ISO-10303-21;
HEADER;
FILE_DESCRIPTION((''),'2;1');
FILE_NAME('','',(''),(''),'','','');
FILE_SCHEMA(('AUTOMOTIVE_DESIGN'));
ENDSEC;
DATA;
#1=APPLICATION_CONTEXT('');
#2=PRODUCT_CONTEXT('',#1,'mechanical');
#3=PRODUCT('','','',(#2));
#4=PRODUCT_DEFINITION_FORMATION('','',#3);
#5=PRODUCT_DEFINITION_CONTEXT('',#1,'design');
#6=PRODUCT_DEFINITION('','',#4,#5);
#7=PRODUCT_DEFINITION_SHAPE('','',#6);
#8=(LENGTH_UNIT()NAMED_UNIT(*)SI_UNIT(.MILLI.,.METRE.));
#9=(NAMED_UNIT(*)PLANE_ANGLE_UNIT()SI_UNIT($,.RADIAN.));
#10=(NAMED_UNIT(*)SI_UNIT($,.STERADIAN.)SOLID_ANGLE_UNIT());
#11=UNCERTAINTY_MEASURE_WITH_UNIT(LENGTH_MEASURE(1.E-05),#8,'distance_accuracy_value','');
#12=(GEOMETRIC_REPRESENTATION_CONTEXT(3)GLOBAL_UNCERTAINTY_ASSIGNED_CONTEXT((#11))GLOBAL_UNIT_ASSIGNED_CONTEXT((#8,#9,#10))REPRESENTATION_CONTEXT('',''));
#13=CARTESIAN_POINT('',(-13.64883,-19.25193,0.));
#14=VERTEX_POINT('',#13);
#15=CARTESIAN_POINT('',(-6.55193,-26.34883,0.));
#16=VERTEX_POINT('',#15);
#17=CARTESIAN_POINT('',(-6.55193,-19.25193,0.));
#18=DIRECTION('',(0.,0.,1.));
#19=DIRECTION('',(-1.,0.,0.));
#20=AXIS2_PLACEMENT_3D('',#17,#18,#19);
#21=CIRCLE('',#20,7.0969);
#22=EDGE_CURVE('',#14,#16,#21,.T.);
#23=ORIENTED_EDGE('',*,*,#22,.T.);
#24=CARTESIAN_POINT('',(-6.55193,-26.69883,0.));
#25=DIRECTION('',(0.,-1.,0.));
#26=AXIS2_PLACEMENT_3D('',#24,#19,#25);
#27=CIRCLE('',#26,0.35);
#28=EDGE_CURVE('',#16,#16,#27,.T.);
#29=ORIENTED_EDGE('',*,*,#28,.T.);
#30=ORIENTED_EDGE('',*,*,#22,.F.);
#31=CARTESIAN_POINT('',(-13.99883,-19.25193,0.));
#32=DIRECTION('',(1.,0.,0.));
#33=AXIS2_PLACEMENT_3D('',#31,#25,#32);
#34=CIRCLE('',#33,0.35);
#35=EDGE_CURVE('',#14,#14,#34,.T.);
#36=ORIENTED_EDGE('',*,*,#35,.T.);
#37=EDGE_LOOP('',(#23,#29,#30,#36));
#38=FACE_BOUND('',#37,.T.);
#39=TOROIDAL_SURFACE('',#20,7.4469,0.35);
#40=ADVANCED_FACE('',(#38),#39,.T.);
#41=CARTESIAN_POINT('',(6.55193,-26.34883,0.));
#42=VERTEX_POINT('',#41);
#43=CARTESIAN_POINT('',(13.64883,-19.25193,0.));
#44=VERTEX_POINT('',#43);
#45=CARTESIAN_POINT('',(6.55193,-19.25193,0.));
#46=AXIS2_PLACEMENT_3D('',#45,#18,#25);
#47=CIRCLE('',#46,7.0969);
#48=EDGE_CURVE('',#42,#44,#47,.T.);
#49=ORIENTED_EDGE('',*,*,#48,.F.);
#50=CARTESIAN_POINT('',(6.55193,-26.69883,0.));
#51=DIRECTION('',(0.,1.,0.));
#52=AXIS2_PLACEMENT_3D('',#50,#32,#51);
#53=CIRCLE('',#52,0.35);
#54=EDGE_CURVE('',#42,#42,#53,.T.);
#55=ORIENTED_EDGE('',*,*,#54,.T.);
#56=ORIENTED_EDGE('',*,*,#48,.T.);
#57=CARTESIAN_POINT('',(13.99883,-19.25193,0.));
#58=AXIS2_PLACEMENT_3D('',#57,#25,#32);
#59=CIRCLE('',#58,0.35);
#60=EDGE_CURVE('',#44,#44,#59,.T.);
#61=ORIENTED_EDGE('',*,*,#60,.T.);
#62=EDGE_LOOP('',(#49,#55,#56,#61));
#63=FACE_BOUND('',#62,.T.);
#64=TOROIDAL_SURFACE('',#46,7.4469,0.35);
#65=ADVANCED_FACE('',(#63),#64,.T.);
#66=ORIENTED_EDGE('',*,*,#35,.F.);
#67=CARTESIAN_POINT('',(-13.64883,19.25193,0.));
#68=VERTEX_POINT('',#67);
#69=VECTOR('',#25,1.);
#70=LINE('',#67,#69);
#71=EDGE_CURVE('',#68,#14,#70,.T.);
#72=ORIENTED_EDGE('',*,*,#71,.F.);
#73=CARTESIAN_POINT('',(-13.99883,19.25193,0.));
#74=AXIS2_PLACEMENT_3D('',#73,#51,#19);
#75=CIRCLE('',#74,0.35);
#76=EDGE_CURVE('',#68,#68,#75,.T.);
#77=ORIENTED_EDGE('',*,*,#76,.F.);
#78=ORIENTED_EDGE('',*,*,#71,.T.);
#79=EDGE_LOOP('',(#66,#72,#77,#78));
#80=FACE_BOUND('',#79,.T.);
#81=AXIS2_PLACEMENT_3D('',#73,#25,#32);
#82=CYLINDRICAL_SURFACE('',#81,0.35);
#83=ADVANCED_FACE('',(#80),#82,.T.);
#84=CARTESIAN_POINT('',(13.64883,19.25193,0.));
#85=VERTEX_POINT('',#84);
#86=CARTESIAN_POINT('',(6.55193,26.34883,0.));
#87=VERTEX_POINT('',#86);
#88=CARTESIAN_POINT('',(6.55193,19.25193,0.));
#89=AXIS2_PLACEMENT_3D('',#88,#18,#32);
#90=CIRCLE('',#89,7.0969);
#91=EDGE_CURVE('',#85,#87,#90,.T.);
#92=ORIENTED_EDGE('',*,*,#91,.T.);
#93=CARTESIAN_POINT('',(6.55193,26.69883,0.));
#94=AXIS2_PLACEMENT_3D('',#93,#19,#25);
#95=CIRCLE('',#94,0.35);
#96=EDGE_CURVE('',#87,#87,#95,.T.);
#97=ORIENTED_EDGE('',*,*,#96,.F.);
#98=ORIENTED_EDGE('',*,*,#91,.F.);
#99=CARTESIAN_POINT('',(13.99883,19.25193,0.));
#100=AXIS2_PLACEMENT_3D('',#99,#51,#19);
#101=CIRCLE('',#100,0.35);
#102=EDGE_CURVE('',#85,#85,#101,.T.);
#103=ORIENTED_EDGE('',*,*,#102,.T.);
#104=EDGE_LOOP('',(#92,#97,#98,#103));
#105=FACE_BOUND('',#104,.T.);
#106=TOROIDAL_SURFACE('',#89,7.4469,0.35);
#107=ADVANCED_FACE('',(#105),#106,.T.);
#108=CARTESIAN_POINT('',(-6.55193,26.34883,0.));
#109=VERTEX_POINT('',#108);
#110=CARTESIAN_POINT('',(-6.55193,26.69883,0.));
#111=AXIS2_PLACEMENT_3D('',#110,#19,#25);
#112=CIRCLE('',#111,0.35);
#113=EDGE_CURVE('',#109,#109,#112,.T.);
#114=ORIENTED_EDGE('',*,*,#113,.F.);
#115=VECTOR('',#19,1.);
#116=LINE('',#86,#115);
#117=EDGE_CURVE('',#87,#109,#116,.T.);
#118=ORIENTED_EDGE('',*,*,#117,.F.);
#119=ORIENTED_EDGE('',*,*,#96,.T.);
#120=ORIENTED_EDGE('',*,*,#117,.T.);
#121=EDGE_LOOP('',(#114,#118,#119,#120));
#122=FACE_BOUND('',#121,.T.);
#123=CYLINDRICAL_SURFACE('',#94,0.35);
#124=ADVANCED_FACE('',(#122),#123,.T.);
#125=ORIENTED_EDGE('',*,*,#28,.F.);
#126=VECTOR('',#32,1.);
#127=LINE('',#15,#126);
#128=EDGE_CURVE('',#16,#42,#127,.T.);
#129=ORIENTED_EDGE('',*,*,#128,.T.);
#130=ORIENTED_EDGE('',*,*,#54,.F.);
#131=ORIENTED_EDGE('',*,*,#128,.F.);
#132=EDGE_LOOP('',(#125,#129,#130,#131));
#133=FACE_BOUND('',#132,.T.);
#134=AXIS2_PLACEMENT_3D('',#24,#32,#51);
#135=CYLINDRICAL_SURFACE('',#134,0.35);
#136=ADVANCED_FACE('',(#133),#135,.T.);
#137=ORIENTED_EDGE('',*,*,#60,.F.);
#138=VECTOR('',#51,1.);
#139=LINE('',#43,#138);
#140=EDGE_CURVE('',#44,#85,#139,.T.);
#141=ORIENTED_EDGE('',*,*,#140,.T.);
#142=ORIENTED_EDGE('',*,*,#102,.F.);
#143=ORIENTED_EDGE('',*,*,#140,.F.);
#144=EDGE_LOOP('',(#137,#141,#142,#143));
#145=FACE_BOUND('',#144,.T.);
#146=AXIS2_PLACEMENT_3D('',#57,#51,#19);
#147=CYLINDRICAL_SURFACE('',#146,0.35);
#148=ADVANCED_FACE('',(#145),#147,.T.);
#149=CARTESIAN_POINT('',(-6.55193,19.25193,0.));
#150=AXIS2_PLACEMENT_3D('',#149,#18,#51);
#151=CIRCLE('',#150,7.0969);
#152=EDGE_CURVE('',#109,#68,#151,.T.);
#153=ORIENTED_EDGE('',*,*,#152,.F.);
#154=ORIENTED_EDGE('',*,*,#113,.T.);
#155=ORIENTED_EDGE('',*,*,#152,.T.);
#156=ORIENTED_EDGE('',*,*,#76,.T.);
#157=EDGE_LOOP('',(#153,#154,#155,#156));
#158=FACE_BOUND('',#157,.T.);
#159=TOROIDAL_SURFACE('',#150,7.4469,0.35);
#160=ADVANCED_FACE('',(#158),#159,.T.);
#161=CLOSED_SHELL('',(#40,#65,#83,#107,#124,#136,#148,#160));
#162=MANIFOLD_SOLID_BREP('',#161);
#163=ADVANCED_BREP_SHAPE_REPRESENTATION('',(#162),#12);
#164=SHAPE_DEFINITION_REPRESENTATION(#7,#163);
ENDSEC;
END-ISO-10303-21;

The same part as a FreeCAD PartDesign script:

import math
import FreeCAD as App
import Part
import Sketcher
Q = App.Units.Quantity

doc = App.newDocument("Part")
body = doc.addObject("PartDesign::Body", "Body")

# Sketch on XZ plane
sketch1 = doc.addObject("Sketcher::SketchObject", "Sketch")
body.addObject(sketch1)
sketch1.AttachmentSupport = (doc.XZ_Plane, [""])
sketch1.MapMode = "FlatFace"
sketch1.AttachmentOffset = App.Placement(App.Vector(0, 0, 19.25193), App.Rotation())
sketch1.addGeometry(Part.Circle(App.Vector(-14, 0, 0), App.Vector(0, 0, 1), 0.35), False)
sketch1.addConstraint(Sketcher.Constraint("PointOnObject", 0, 3, -1))
sketch1.addConstraint(Sketcher.Constraint("Diameter", 0, Q("0.7 mm")))
sketch1.addConstraint(Sketcher.Constraint("DistanceX", 0, 3, -1, 1, Q("13.99883 mm")))

# Sketch on XY plane
sketch2 = doc.addObject("Sketcher::SketchObject", "Sketch001")
body.addObject(sketch2)
sketch2.AttachmentSupport = (doc.XY_Plane, [""])
sketch2.MapMode = "FlatFace"
sketch2.addGeometry(Part.LineSegment(App.Vector(7, 27, 0), App.Vector(-7, 27, 0)), False)
sketch2.addGeometry(Part.ArcOfCircle(Part.Circle(App.Vector(-7, 19, 0), App.Vector(0, 0, 1), 7), math.radians(90), math.radians(180)), False)
sketch2.addGeometry(Part.LineSegment(App.Vector(-14, 19, 0), App.Vector(-14, -19, 0)), False)
sketch2.addGeometry(Part.ArcOfCircle(Part.Circle(App.Vector(-7, -19, 0), App.Vector(0, 0, 1), 7), math.radians(180), math.radians(270)), False)
sketch2.addGeometry(Part.LineSegment(App.Vector(-7, -27, 0), App.Vector(7, -27, 0)), False)
sketch2.addGeometry(Part.ArcOfCircle(Part.Circle(App.Vector(7, -19, 0), App.Vector(0, 0, 1), 7), math.radians(-90), math.radians(0)), False)
sketch2.addGeometry(Part.LineSegment(App.Vector(14, -19, 0), App.Vector(14, 19, 0)), False)
sketch2.addGeometry(Part.ArcOfCircle(Part.Circle(App.Vector(7, 19, 0), App.Vector(0, 0, 1), 7), math.radians(0), math.radians(90)), False)
sketch2.addConstraint(Sketcher.Constraint("Tangent", 0, 2, 1, 1))
sketch2.addConstraint(Sketcher.Constraint("Tangent", 1, 2, 2, 1))
sketch2.addConstraint(Sketcher.Constraint("Tangent", 2, 2, 3, 1))
sketch2.addConstraint(Sketcher.Constraint("Tangent", 3, 2, 4, 1))
sketch2.addConstraint(Sketcher.Constraint("Tangent", 4, 2, 5, 1))
sketch2.addConstraint(Sketcher.Constraint("Tangent", 5, 2, 6, 1))
sketch2.addConstraint(Sketcher.Constraint("Tangent", 6, 2, 7, 1))
sketch2.addConstraint(Sketcher.Constraint("Tangent", 7, 2, 0, 1))
sketch2.addConstraint(Sketcher.Constraint("Horizontal", 0))
sketch2.addConstraint(Sketcher.Constraint("Vertical", 2))
sketch2.addConstraint(Sketcher.Constraint("Horizontal", 4))
sketch2.addConstraint(Sketcher.Constraint("Vertical", 6))
sketch2.addConstraint(Sketcher.Constraint("Equal", 1, 3))
sketch2.addConstraint(Sketcher.Constraint("Equal", 3, 5))
sketch2.addConstraint(Sketcher.Constraint("Equal", 5, 7))
sketch2.addConstraint(Sketcher.Constraint("Symmetric", 1, 3, 5, 3, -1, 1))
sketch2.addConstraint(Sketcher.Constraint("Radius", 1, Q("7.4469 mm")))
sketch2.addConstraint(Sketcher.Constraint("DistanceX", 0, 2, 0, 1, Q("13.10386 mm")))
sketch2.addConstraint(Sketcher.Constraint("DistanceY", 2, 2, 2, 1, Q("38.50386 mm")))
doc.recompute()

additivepipe = doc.addObject("PartDesign::AdditivePipe", "AdditivePipe")
body.addObject(additivepipe)
additivepipe.Profile = sketch1
additivepipe.Spine = (sketch2, ["Edge1", "Edge2", "Edge3", "Edge4", "Edge5", "Edge6", "Edge7", "Edge8"])

doc.recompute()
